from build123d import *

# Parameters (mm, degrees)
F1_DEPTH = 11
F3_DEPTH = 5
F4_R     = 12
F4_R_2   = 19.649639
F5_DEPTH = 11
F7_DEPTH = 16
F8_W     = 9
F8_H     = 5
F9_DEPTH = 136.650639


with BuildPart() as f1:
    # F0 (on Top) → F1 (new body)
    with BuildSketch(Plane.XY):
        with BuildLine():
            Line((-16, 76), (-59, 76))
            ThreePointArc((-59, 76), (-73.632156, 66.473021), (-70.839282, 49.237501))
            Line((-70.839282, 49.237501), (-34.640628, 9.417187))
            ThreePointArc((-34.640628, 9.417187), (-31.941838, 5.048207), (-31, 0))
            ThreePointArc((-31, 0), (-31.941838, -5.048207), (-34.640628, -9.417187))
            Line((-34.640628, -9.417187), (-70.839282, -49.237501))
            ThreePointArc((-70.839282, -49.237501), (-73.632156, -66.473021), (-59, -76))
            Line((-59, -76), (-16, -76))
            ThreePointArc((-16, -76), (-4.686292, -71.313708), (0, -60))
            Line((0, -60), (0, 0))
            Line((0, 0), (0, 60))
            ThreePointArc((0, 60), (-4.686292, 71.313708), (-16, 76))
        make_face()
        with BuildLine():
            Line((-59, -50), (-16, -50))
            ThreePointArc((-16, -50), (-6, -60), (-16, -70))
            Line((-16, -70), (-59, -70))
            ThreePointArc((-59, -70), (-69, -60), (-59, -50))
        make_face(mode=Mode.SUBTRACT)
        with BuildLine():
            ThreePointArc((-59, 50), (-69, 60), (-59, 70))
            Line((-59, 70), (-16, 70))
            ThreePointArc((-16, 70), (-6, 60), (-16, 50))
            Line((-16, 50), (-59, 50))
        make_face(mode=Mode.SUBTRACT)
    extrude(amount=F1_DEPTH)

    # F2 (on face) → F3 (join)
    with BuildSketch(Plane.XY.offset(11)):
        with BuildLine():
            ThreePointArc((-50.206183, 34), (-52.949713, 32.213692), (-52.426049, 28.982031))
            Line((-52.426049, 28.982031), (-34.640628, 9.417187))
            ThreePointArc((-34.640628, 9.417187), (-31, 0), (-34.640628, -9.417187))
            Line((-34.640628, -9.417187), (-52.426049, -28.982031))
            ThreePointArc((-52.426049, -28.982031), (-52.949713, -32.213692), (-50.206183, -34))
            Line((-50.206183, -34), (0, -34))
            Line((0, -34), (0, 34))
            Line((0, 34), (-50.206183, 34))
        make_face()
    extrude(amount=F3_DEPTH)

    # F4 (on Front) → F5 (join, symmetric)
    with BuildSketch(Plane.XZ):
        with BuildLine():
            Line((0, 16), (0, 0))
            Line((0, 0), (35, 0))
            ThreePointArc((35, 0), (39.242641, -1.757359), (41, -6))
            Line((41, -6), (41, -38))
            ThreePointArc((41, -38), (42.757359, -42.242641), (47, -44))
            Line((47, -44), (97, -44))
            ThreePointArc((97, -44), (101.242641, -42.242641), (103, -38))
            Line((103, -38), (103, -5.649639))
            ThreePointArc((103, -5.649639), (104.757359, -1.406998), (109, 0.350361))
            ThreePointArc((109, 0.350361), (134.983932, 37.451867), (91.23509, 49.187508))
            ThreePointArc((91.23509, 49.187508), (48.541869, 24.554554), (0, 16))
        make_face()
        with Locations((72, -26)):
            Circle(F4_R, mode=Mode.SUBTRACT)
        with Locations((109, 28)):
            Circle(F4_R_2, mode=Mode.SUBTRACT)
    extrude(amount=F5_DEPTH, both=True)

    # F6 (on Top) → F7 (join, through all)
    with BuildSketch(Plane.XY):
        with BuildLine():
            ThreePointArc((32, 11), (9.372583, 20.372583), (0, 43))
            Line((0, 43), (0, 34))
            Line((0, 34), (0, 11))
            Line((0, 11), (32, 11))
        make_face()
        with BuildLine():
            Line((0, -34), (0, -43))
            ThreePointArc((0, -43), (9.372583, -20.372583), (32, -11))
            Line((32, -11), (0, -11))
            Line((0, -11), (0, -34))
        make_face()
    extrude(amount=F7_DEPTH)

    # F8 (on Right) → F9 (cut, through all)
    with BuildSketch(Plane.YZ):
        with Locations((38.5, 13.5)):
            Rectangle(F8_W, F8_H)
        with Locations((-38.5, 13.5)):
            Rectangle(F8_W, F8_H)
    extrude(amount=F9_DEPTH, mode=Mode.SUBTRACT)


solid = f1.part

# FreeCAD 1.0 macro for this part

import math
import FreeCAD as App
import Part
import Sketcher

V = App.Vector


def add_polygon(sketch, points):
    """Adds a closed chain of lines whose ends are joined by coincident constraints."""
    first, n = sketch.GeometryCount, len(points)
    for a, b in zip(points, points[1:] + points[:1]):
        sketch.addGeometry(Part.LineSegment(App.Vector(*a, 0), App.Vector(*b, 0)), False)
    for i in range(n):
        sketch.addConstraint(Sketcher.Constraint("Coincident", first + i, 2, first + (i + 1) % n, 1))

doc = App.newDocument("Part")
params = doc.addObject("Spreadsheet::Sheet", "Params")
for row, (alias, value) in enumerate([
    ("sketch1_radius", "16 mm"),
    ("sketch1_radius2", "10 mm"),
    ("sketch1_width", "43 mm"),
    ("sketch1_height", "120 mm"),
    ("pad1_length", "11 mm"),
    ("sketch2_radius", "3 mm"),
    ("sketch2_radius2", "14 mm"),
    ("sketch2_height", "68 mm"),
    ("pad2_length", "5 mm"),
    ("sketch3_diameter", "24 mm"),
    ("sketch3_radius", "5.999999 mm"),
    ("sketch3_width", "35 mm"),
    ("sketch3_width2", "50 mm"),
    ("sketch3_height", "16 mm"),
    ("pad3_length", "22 mm"),
    ("sketch4_radius", "32 mm"),
    ("pad4_length", "16 mm"),
    ("sketch5_width", "9 mm"),
    ("sketch5_height", "5 mm"),
], start=1):
    params.set(f"A{row}", alias)
    params.set(f"B{row}", "=" + value)
    params.setAlias(f"B{row}", alias)

body = doc.addObject("PartDesign::Body", "Body")

sketch1 = body.newObject("Sketcher::SketchObject", "Sketch")
sketch1.AttachmentSupport = (doc.getObject("XY_Plane"), [""])
sketch1.MapMode = "FlatFace"
sketch1.addGeometry([
    Part.LineSegment(V(-16, 76, 0), V(-59, 76, 0)),
    Part.ArcOfCircle(Part.Circle(V(-59, 60, 0), V(0, 0, 1), 16), math.radians(90.000001), math.radians(222.272405)),
    Part.LineSegment(V(-70.839282, 49.237501, 0), V(-34.640628, 9.417187, 0)),
    Part.ArcOfCircle(Part.Circle(V(-45.000005, -0.000002, 0), V(0, 0, 1), 14.000005), math.radians(0.000009), math.radians(42.272397)),
    Part.ArcOfCircle(Part.Circle(V(-45.000005, 0.000002, 0), V(0, 0, 1), 14.000005), math.radians(-42.272397), math.radians(-0.000009)),
    Part.LineSegment(V(-34.640628, -9.417187, 0), V(-70.839282, -49.237501, 0)),
    Part.ArcOfCircle(Part.Circle(V(-59, -60, 0), V(0, 0, 1), 16), math.radians(137.727595), math.radians(269.999999)),
    Part.LineSegment(V(-59, -76, 0), V(-16, -76, 0)),
    Part.ArcOfCircle(Part.Circle(V(-16.000002, -59.999998, 0), V(0, 0, 1), 16.000002), math.radians(-89.999994), math.radians(-0.000006)),
    Part.LineSegment(V(0, -60, 0), V(0, 60, 0)),
    Part.ArcOfCircle(Part.Circle(V(-16.000002, 59.999998, 0), V(0, 0, 1), 16.000002), math.radians(0.000006), math.radians(89.999994)),
    Part.ArcOfCircle(Part.Circle(V(-59, -60, 0), V(0, 0, 1), 10), math.radians(90), math.radians(270)),
    Part.LineSegment(V(-59, -50, 0), V(-16, -50, 0)),
    Part.ArcOfCircle(Part.Circle(V(-16, -60, 0), V(0, 0, 1), 10), math.radians(-90), math.radians(90)),
    Part.LineSegment(V(-16, -70, 0), V(-59, -70, 0)),
    Part.LineSegment(V(-16, 50, 0), V(-59, 50, 0)),
    Part.ArcOfCircle(Part.Circle(V(-59, 60, 0), V(0, 0, 1), 10), math.radians(90), math.radians(270)),
    Part.LineSegment(V(-59, 70, 0), V(-16, 70, 0)),
    Part.ArcOfCircle(Part.Circle(V(-16, 60, 0), V(0, 0, 1), 10), math.radians(-90), math.radians(90)),
], False)
sketch1.addConstraint([
    Sketcher.Constraint("Tangent", 0, 2, 1, 1),
    Sketcher.Constraint("Tangent", 1, 2, 2, 1),
    Sketcher.Constraint("Tangent", 2, 2, 3, 2),
    Sketcher.Constraint("Tangent", 3, 1, 4, 2),
    Sketcher.Constraint("Tangent", 4, 1, 5, 1),
    Sketcher.Constraint("Tangent", 5, 2, 6, 1),
    Sketcher.Constraint("Tangent", 6, 2, 7, 1),
    Sketcher.Constraint("Tangent", 7, 2, 8, 1),
    Sketcher.Constraint("Tangent", 8, 2, 9, 1),
    Sketcher.Constraint("Tangent", 9, 2, 10, 1),
    Sketcher.Constraint("Tangent", 10, 2, 0, 1),
    Sketcher.Constraint("Tangent", 11, 1, 12, 1),
    Sketcher.Constraint("Tangent", 12, 2, 13, 2),
    Sketcher.Constraint("Tangent", 13, 1, 14, 1),
    Sketcher.Constraint("Tangent", 14, 2, 11, 2),
    Sketcher.Constraint("Tangent", 15, 2, 16, 2),
    Sketcher.Constraint("Tangent", 16, 1, 17, 1),
    Sketcher.Constraint("Tangent", 17, 2, 18, 2),
    Sketcher.Constraint("Tangent", 18, 1, 15, 1),
    Sketcher.Constraint("Horizontal", 0),
    Sketcher.Constraint("Horizontal", 7),
    Sketcher.Constraint("Vertical", 9),
    Sketcher.Constraint("Horizontal", 12),
    Sketcher.Constraint("Horizontal", 14),
    Sketcher.Constraint("Horizontal", 15),
    Sketcher.Constraint("Horizontal", 17),
    Sketcher.Constraint("Coincident", 11, 3, 6, 3),
    Sketcher.Constraint("Coincident", 13, 3, 8, 3),
    Sketcher.Constraint("Coincident", 16, 3, 1, 3),
    Sketcher.Constraint("Coincident", 18, 3, 10, 3),
    Sketcher.Constraint("Equal", 3, 4),
    Sketcher.Constraint("Equal", 1, 6),
    Sketcher.Constraint("Equal", 13, 16),
    Sketcher.Constraint("Symmetric", 8, 2, 9, 2, -1, 1),
    Sketcher.Constraint("Symmetric", 2, 2, 4, 1, -1),
    Sketcher.Constraint("PointOnObject", 3, 1, -1),
    Sketcher.Constraint("Radius", 1, 16.0),
    Sketcher.Constraint("Radius", 11, 10.0),
    Sketcher.Constraint("DistanceX", 0, 2, 0, 1, 43.0),
    Sketcher.Constraint("DistanceY", 9, 1, 9, 2, 120.0),
    Sketcher.Constraint("DistanceX", 3, 1, -1, 1, 31.0),
    Sketcher.Constraint("Radius", 3, 14.000005),
])
sketch1.setExpression("Constraints[36]", "Params.sketch1_radius")
sketch1.setExpression("Constraints[37]", "Params.sketch1_radius2")
sketch1.setExpression("Constraints[38]", "Params.sketch1_width")
sketch1.setExpression("Constraints[39]", "Params.sketch1_height")
pad1 = body.newObject("PartDesign::Pad", "Pad")
pad1.Profile = sketch1
pad1.setExpression("Length", "Params.pad1_length")

sketch2 = body.newObject("Sketcher::SketchObject", "Sketch001")
sketch2.AttachmentSupport = (doc.getObject("XY_Plane"), [""])
sketch2.MapMode = "FlatFace"
sketch2.AttachmentOffset = App.Placement(V(0, 0, 11), App.Rotation())
sketch2.addGeometry([
    Part.ArcOfCircle(Part.Circle(V(-50.206184, 31, 0), V(0, 0, 1), 3), math.radians(89.999982), math.radians(222.272416)),
    Part.LineSegment(V(-52.426049, 28.982031, 0), V(-34.640628, 9.417187, 0)),
    Part.ArcOfCircle(Part.Circle(V(-45, 0, 0), V(0, 0, 1), 14), math.radians(-42.272406), math.radians(42.272406)),
    Part.LineSegment(V(-34.640628, -9.417187, 0), V(-52.426049, -28.982031, 0)),
    Part.ArcOfCircle(Part.Circle(V(-50.206184, -31, 0), V(0, 0, 1), 3), math.radians(137.727584), math.radians(270.000018)),
    Part.LineSegment(V(-50.206183, -34, 0), V(0, -34, 0)),
    Part.LineSegment(V(0, -34, 0), V(0, 34, 0)),
    Part.LineSegment(V(0, 34, 0), V(-50.206183, 34, 0)),
], False)
sketch2.addConstraint([
    Sketcher.Constraint("Tangent", 0, 2, 1, 1),
    Sketcher.Constraint("Tangent", 1, 2, 2, 2),
    Sketcher.Constraint("Tangent", 2, 1, 3, 1),
    Sketcher.Constraint("Tangent", 3, 2, 4, 1),
    Sketcher.Constraint("Tangent", 4, 2, 5, 1),
    Sketcher.Constraint("Coincident", 5, 2, 6, 1),
    Sketcher.Constraint("Coincident", 6, 2, 7, 1),
    Sketcher.Constraint("Tangent", 7, 2, 0, 1),
    Sketcher.Constraint("Horizontal", 5),
    Sketcher.Constraint("Vertical", 6),
    Sketcher.Constraint("Horizontal", 7),
    Sketcher.Constraint("Equal", 0, 4),
    Sketcher.Constraint("Symmetric", 5, 2, 6, 2, -1, 1),
    Sketcher.Constraint("Symmetric", 1, 2, 2, 1, -1),
    Sketcher.Constraint("Radius", 0, 3.0),
    Sketcher.Constraint("Radius", 2, 14.0),
    Sketcher.Constraint("DistanceY", 6, 1, 6, 2, 68.0),
    Sketcher.Constraint("DistanceX", 2, 3, -1, 1, 45.0),
    Sketcher.Constraint("Distance", 1, 26.440581),
])
sketch2.setExpression("Constraints[14]", "Params.sketch2_radius")
sketch2.setExpression("Constraints[15]", "Params.sketch2_radius2")
sketch2.setExpression("Constraints[16]", "Params.sketch2_height")
pad2 = body.newObject("PartDesign::Pad", "Pad001")
pad2.Profile = sketch2
pad2.setExpression("Length", "Params.pad2_length")

sketch3 = body.newObject("Sketcher::SketchObject", "Sketch002")
sketch3.AttachmentSupport = (doc.getObject("XZ_Plane"), [""])
sketch3.MapMode = "FlatFace"
sketch3.addGeometry([
    Part.LineSegment(V(0, 16, 0), V(0, 0, 0)),
    Part.LineSegment(V(0, 0, 0), V(35, 0, 0)),
    Part.ArcOfCircle(Part.Circle(V(35.000001, -5.999999, 0), V(0, 0, 1), 5.999999), math.radians(-0.00001), math.radians(90.00001)),
    Part.LineSegment(V(41, -6, 0), V(41, -38, 0)),
    Part.ArcOfCircle(Part.Circle(V(46.999999, -38.000001, 0), V(0, 0, 1), 5.999999), math.radians(179.99999), math.radians(270.00001)),
    Part.LineSegment(V(47, -44, 0), V(97, -44, 0)),
    Part.ArcOfCircle(Part.Circle(V(97.000001, -38.000001, 0), V(0, 0, 1), 5.999999), math.radians(-90.00001), math.radians(0.00001)),
    Part.LineSegment(V(103, -38, 0), V(103, -5.649639, 0)),
    Part.ArcOfCircle(Part.Circle(V(108.999999, -5.649638, 0), V(0, 0, 1), 5.999999), math.radians(89.99999), math.radians(180.00001)),
    Part.ArcOfCircle(Part.Circle(V(109, 28, 0), V(0, 0, 1), 27.649639), math.radians(-90), math.radians(129.978538)),
    Part.ArcOfCircle(Part.Circle(V(0.000002, 157.999996, 0), V(0, 0, 1), 141.999996), math.radians(-90.000001), math.radians(-50.02146)),
    Part.Circle(V(72, -26, 0), V(0, 0, 1), 12),
    Part.Circle(V(109, 28, 0), V(0, 0, 1), 19.649639),
], False)
sketch3.addConstraint([
    Sketcher.Constraint("Coincident", 0, 2, 1, 1),
    Sketcher.Constraint("Tangent", 1, 2, 2, 2),
    Sketcher.Constraint("Tangent", 2, 1, 3, 1),
    Sketcher.Constraint("Tangent", 3, 2, 4, 1),
    Sketcher.Constraint("Tangent", 4, 2, 5, 1),
    Sketcher.Constraint("Tangent", 5, 2, 6, 1),
    Sketcher.Constraint("Tangent", 6, 2, 7, 1),
    Sketcher.Constraint("Tangent", 7, 2, 8, 2),
    Sketcher.Constraint("Tangent", 8, 1, 9, 1),
    Sketcher.Constraint("Tangent", 9, 2, 10, 2),
    Sketcher.Constraint("Coincident", 10, 1, 0, 1),
    Sketcher.Constraint("Vertical", 0),
    Sketcher.Constraint("Horizontal", 1),
    Sketcher.Constraint("Vertical", 3),
    Sketcher.Constraint("Horizontal", 5),
    Sketcher.Constraint("Vertical", 7),
    Sketcher.Constraint("Coincident", 0, 2, -1, 1),
    Sketcher.Constraint("Coincident", 12, 3, 9, 3),
    Sketcher.Constraint("Equal", 2, 4),
    Sketcher.Constraint("Equal", 4, 6),
    Sketcher.Constraint("Equal", 6, 8),
    Sketcher.Constraint("PointOnObject", 10, 3, -2),
    Sketcher.Constraint("Vertical", 8, 3, 9, 3),
    Sketcher.Constraint("Diameter", 11, 24.0),
    Sketcher.Constraint("Radius", 2, 5.999999),
    Sketcher.Constraint("DistanceX", 1, 1, 1, 2, 35.0),
    Sketcher.Constraint("DistanceX", 5, 1, 5, 2, 50.0),
    Sketcher.Constraint("DistanceY", 0, 2, 0, 1, 16.0),
    Sketcher.Constraint("DistanceY", 3, 2, 3, 1, 32.0),
    Sketcher.Constraint("DistanceY", -1, 1, 9, 3, 28.0),
    Sketcher.Constraint("DistanceX", -1, 1, 11, 3, 72.0),
    Sketcher.Constraint("DistanceY", 11, 3, -1, 1, 26.0),
    Sketcher.Constraint("Radius", 9, 27.649639),
    Sketcher.Constraint("Diameter", 12, 39.299278),
])
sketch3.setExpression("Constraints[23]", "Params.sketch3_diameter")
sketch3.setExpression("Constraints[24]", "Params.sketch3_radius")
sketch3.setExpression("Constraints[25]", "Params.sketch3_width")
sketch3.setExpression("Constraints[26]", "Params.sketch3_width2")
sketch3.setExpression("Constraints[27]", "Params.sketch3_height")
pad3 = body.newObject("PartDesign::Pad", "Pad002")
pad3.Profile = sketch3
pad3.setExpression("Length", "Params.pad3_length")
pad3.Midplane = True

sketch4 = body.newObject("Sketcher::SketchObject", "Sketch003")
sketch4.AttachmentSupport = (doc.getObject("XY_Plane"), [""])
sketch4.MapMode = "FlatFace"
sketch4.addGeometry([
    Part.ArcOfCircle(Part.Circle(V(32, 43, 0), V(0, 0, 1), 32), math.radians(180), math.radians(270)),
    Part.LineSegment(V(0, 43, 0), V(0, 11, 0)),
    Part.LineSegment(V(0, 11, 0), V(32, 11, 0)),
    Part.ArcOfCircle(Part.Circle(V(32, -43, 0), V(0, 0, 1), 32), math.radians(90), math.radians(180)),
    Part.LineSegment(V(32, -11, 0), V(0, -11, 0)),
    Part.LineSegment(V(0, -11, 0), V(0, -43, 0)),
], False)
sketch4.addConstraint([
    Sketcher.Constraint("Tangent", 0, 1, 1, 1),
    Sketcher.Constraint("Coincident", 1, 2, 2, 1),
    Sketcher.Constraint("Tangent", 2, 2, 0, 2),
    Sketcher.Constraint("Tangent", 3, 1, 4, 1),
    Sketcher.Constraint("Coincident", 4, 2, 5, 1),
    Sketcher.Constraint("Tangent", 5, 2, 3, 2),
    Sketcher.Constraint("Vertical", 1),
    Sketcher.Constraint("Horizontal", 2),
    Sketcher.Constraint("Horizontal", 4),
    Sketcher.Constraint("Vertical", 5),
    Sketcher.Constraint("Equal", 0, 3),
    Sketcher.Constraint("Symmetric", 1, 2, 4, 2, -1, 1),
    Sketcher.Constraint("PointOnObject", 0, 1, -2),
    Sketcher.Constraint("Radius", 0, 32.0),
    Sketcher.Constraint("DistanceY", -1, 1, 0, 3, 43.0),
])
sketch4.setExpression("Constraints[13]", "Params.sketch4_radius")
pad4 = body.newObject("PartDesign::Pad", "Pad003")
pad4.Profile = sketch4
pad4.setExpression("Length", "Params.pad4_length")

sketch5 = body.newObject("Sketcher::SketchObject", "Sketch004")
sketch5.AttachmentSupport = (doc.getObject("YZ_Plane"), [""])
sketch5.MapMode = "FlatFace"
add_polygon(sketch5, [(34, 16), (34, 11), (43, 11), (43, 16)])
add_polygon(sketch5, [(-43, 16), (-43, 11), (-34, 11), (-34, 16)])
sketch5.addConstraint([
    Sketcher.Constraint("Vertical", 0),
    Sketcher.Constraint("Horizontal", 1),
    Sketcher.Constraint("Vertical", 2),
    Sketcher.Constraint("Horizontal", 3),
    Sketcher.Constraint("Vertical", 4),
    Sketcher.Constraint("Horizontal", 5),
    Sketcher.Constraint("Vertical", 6),
    Sketcher.Constraint("Horizontal", 7),
    Sketcher.Constraint("Symmetric", 1, 2, 4, 2, -2),
    Sketcher.Constraint("Symmetric", 3, 2, 6, 2, -2),
    Sketcher.Constraint("DistanceX", 1, 1, 1, 2, 9.0),
    Sketcher.Constraint("DistanceY", 0, 2, 0, 1, 5.0),
    Sketcher.Constraint("DistanceX", -1, 1, 0, 2, 34.0),
    Sketcher.Constraint("DistanceY", -1, 1, 0, 2, 11.0),
])
sketch5.setExpression("Constraints[18]", "Params.sketch5_width")
sketch5.setExpression("Constraints[19]", "Params.sketch5_height")
pocket1 = body.newObject("PartDesign::Pocket", "Pocket")
pocket1.Profile = sketch5
pocket1.Type = "ThroughAll"
pocket1.Reversed = True

doc.recompute()
